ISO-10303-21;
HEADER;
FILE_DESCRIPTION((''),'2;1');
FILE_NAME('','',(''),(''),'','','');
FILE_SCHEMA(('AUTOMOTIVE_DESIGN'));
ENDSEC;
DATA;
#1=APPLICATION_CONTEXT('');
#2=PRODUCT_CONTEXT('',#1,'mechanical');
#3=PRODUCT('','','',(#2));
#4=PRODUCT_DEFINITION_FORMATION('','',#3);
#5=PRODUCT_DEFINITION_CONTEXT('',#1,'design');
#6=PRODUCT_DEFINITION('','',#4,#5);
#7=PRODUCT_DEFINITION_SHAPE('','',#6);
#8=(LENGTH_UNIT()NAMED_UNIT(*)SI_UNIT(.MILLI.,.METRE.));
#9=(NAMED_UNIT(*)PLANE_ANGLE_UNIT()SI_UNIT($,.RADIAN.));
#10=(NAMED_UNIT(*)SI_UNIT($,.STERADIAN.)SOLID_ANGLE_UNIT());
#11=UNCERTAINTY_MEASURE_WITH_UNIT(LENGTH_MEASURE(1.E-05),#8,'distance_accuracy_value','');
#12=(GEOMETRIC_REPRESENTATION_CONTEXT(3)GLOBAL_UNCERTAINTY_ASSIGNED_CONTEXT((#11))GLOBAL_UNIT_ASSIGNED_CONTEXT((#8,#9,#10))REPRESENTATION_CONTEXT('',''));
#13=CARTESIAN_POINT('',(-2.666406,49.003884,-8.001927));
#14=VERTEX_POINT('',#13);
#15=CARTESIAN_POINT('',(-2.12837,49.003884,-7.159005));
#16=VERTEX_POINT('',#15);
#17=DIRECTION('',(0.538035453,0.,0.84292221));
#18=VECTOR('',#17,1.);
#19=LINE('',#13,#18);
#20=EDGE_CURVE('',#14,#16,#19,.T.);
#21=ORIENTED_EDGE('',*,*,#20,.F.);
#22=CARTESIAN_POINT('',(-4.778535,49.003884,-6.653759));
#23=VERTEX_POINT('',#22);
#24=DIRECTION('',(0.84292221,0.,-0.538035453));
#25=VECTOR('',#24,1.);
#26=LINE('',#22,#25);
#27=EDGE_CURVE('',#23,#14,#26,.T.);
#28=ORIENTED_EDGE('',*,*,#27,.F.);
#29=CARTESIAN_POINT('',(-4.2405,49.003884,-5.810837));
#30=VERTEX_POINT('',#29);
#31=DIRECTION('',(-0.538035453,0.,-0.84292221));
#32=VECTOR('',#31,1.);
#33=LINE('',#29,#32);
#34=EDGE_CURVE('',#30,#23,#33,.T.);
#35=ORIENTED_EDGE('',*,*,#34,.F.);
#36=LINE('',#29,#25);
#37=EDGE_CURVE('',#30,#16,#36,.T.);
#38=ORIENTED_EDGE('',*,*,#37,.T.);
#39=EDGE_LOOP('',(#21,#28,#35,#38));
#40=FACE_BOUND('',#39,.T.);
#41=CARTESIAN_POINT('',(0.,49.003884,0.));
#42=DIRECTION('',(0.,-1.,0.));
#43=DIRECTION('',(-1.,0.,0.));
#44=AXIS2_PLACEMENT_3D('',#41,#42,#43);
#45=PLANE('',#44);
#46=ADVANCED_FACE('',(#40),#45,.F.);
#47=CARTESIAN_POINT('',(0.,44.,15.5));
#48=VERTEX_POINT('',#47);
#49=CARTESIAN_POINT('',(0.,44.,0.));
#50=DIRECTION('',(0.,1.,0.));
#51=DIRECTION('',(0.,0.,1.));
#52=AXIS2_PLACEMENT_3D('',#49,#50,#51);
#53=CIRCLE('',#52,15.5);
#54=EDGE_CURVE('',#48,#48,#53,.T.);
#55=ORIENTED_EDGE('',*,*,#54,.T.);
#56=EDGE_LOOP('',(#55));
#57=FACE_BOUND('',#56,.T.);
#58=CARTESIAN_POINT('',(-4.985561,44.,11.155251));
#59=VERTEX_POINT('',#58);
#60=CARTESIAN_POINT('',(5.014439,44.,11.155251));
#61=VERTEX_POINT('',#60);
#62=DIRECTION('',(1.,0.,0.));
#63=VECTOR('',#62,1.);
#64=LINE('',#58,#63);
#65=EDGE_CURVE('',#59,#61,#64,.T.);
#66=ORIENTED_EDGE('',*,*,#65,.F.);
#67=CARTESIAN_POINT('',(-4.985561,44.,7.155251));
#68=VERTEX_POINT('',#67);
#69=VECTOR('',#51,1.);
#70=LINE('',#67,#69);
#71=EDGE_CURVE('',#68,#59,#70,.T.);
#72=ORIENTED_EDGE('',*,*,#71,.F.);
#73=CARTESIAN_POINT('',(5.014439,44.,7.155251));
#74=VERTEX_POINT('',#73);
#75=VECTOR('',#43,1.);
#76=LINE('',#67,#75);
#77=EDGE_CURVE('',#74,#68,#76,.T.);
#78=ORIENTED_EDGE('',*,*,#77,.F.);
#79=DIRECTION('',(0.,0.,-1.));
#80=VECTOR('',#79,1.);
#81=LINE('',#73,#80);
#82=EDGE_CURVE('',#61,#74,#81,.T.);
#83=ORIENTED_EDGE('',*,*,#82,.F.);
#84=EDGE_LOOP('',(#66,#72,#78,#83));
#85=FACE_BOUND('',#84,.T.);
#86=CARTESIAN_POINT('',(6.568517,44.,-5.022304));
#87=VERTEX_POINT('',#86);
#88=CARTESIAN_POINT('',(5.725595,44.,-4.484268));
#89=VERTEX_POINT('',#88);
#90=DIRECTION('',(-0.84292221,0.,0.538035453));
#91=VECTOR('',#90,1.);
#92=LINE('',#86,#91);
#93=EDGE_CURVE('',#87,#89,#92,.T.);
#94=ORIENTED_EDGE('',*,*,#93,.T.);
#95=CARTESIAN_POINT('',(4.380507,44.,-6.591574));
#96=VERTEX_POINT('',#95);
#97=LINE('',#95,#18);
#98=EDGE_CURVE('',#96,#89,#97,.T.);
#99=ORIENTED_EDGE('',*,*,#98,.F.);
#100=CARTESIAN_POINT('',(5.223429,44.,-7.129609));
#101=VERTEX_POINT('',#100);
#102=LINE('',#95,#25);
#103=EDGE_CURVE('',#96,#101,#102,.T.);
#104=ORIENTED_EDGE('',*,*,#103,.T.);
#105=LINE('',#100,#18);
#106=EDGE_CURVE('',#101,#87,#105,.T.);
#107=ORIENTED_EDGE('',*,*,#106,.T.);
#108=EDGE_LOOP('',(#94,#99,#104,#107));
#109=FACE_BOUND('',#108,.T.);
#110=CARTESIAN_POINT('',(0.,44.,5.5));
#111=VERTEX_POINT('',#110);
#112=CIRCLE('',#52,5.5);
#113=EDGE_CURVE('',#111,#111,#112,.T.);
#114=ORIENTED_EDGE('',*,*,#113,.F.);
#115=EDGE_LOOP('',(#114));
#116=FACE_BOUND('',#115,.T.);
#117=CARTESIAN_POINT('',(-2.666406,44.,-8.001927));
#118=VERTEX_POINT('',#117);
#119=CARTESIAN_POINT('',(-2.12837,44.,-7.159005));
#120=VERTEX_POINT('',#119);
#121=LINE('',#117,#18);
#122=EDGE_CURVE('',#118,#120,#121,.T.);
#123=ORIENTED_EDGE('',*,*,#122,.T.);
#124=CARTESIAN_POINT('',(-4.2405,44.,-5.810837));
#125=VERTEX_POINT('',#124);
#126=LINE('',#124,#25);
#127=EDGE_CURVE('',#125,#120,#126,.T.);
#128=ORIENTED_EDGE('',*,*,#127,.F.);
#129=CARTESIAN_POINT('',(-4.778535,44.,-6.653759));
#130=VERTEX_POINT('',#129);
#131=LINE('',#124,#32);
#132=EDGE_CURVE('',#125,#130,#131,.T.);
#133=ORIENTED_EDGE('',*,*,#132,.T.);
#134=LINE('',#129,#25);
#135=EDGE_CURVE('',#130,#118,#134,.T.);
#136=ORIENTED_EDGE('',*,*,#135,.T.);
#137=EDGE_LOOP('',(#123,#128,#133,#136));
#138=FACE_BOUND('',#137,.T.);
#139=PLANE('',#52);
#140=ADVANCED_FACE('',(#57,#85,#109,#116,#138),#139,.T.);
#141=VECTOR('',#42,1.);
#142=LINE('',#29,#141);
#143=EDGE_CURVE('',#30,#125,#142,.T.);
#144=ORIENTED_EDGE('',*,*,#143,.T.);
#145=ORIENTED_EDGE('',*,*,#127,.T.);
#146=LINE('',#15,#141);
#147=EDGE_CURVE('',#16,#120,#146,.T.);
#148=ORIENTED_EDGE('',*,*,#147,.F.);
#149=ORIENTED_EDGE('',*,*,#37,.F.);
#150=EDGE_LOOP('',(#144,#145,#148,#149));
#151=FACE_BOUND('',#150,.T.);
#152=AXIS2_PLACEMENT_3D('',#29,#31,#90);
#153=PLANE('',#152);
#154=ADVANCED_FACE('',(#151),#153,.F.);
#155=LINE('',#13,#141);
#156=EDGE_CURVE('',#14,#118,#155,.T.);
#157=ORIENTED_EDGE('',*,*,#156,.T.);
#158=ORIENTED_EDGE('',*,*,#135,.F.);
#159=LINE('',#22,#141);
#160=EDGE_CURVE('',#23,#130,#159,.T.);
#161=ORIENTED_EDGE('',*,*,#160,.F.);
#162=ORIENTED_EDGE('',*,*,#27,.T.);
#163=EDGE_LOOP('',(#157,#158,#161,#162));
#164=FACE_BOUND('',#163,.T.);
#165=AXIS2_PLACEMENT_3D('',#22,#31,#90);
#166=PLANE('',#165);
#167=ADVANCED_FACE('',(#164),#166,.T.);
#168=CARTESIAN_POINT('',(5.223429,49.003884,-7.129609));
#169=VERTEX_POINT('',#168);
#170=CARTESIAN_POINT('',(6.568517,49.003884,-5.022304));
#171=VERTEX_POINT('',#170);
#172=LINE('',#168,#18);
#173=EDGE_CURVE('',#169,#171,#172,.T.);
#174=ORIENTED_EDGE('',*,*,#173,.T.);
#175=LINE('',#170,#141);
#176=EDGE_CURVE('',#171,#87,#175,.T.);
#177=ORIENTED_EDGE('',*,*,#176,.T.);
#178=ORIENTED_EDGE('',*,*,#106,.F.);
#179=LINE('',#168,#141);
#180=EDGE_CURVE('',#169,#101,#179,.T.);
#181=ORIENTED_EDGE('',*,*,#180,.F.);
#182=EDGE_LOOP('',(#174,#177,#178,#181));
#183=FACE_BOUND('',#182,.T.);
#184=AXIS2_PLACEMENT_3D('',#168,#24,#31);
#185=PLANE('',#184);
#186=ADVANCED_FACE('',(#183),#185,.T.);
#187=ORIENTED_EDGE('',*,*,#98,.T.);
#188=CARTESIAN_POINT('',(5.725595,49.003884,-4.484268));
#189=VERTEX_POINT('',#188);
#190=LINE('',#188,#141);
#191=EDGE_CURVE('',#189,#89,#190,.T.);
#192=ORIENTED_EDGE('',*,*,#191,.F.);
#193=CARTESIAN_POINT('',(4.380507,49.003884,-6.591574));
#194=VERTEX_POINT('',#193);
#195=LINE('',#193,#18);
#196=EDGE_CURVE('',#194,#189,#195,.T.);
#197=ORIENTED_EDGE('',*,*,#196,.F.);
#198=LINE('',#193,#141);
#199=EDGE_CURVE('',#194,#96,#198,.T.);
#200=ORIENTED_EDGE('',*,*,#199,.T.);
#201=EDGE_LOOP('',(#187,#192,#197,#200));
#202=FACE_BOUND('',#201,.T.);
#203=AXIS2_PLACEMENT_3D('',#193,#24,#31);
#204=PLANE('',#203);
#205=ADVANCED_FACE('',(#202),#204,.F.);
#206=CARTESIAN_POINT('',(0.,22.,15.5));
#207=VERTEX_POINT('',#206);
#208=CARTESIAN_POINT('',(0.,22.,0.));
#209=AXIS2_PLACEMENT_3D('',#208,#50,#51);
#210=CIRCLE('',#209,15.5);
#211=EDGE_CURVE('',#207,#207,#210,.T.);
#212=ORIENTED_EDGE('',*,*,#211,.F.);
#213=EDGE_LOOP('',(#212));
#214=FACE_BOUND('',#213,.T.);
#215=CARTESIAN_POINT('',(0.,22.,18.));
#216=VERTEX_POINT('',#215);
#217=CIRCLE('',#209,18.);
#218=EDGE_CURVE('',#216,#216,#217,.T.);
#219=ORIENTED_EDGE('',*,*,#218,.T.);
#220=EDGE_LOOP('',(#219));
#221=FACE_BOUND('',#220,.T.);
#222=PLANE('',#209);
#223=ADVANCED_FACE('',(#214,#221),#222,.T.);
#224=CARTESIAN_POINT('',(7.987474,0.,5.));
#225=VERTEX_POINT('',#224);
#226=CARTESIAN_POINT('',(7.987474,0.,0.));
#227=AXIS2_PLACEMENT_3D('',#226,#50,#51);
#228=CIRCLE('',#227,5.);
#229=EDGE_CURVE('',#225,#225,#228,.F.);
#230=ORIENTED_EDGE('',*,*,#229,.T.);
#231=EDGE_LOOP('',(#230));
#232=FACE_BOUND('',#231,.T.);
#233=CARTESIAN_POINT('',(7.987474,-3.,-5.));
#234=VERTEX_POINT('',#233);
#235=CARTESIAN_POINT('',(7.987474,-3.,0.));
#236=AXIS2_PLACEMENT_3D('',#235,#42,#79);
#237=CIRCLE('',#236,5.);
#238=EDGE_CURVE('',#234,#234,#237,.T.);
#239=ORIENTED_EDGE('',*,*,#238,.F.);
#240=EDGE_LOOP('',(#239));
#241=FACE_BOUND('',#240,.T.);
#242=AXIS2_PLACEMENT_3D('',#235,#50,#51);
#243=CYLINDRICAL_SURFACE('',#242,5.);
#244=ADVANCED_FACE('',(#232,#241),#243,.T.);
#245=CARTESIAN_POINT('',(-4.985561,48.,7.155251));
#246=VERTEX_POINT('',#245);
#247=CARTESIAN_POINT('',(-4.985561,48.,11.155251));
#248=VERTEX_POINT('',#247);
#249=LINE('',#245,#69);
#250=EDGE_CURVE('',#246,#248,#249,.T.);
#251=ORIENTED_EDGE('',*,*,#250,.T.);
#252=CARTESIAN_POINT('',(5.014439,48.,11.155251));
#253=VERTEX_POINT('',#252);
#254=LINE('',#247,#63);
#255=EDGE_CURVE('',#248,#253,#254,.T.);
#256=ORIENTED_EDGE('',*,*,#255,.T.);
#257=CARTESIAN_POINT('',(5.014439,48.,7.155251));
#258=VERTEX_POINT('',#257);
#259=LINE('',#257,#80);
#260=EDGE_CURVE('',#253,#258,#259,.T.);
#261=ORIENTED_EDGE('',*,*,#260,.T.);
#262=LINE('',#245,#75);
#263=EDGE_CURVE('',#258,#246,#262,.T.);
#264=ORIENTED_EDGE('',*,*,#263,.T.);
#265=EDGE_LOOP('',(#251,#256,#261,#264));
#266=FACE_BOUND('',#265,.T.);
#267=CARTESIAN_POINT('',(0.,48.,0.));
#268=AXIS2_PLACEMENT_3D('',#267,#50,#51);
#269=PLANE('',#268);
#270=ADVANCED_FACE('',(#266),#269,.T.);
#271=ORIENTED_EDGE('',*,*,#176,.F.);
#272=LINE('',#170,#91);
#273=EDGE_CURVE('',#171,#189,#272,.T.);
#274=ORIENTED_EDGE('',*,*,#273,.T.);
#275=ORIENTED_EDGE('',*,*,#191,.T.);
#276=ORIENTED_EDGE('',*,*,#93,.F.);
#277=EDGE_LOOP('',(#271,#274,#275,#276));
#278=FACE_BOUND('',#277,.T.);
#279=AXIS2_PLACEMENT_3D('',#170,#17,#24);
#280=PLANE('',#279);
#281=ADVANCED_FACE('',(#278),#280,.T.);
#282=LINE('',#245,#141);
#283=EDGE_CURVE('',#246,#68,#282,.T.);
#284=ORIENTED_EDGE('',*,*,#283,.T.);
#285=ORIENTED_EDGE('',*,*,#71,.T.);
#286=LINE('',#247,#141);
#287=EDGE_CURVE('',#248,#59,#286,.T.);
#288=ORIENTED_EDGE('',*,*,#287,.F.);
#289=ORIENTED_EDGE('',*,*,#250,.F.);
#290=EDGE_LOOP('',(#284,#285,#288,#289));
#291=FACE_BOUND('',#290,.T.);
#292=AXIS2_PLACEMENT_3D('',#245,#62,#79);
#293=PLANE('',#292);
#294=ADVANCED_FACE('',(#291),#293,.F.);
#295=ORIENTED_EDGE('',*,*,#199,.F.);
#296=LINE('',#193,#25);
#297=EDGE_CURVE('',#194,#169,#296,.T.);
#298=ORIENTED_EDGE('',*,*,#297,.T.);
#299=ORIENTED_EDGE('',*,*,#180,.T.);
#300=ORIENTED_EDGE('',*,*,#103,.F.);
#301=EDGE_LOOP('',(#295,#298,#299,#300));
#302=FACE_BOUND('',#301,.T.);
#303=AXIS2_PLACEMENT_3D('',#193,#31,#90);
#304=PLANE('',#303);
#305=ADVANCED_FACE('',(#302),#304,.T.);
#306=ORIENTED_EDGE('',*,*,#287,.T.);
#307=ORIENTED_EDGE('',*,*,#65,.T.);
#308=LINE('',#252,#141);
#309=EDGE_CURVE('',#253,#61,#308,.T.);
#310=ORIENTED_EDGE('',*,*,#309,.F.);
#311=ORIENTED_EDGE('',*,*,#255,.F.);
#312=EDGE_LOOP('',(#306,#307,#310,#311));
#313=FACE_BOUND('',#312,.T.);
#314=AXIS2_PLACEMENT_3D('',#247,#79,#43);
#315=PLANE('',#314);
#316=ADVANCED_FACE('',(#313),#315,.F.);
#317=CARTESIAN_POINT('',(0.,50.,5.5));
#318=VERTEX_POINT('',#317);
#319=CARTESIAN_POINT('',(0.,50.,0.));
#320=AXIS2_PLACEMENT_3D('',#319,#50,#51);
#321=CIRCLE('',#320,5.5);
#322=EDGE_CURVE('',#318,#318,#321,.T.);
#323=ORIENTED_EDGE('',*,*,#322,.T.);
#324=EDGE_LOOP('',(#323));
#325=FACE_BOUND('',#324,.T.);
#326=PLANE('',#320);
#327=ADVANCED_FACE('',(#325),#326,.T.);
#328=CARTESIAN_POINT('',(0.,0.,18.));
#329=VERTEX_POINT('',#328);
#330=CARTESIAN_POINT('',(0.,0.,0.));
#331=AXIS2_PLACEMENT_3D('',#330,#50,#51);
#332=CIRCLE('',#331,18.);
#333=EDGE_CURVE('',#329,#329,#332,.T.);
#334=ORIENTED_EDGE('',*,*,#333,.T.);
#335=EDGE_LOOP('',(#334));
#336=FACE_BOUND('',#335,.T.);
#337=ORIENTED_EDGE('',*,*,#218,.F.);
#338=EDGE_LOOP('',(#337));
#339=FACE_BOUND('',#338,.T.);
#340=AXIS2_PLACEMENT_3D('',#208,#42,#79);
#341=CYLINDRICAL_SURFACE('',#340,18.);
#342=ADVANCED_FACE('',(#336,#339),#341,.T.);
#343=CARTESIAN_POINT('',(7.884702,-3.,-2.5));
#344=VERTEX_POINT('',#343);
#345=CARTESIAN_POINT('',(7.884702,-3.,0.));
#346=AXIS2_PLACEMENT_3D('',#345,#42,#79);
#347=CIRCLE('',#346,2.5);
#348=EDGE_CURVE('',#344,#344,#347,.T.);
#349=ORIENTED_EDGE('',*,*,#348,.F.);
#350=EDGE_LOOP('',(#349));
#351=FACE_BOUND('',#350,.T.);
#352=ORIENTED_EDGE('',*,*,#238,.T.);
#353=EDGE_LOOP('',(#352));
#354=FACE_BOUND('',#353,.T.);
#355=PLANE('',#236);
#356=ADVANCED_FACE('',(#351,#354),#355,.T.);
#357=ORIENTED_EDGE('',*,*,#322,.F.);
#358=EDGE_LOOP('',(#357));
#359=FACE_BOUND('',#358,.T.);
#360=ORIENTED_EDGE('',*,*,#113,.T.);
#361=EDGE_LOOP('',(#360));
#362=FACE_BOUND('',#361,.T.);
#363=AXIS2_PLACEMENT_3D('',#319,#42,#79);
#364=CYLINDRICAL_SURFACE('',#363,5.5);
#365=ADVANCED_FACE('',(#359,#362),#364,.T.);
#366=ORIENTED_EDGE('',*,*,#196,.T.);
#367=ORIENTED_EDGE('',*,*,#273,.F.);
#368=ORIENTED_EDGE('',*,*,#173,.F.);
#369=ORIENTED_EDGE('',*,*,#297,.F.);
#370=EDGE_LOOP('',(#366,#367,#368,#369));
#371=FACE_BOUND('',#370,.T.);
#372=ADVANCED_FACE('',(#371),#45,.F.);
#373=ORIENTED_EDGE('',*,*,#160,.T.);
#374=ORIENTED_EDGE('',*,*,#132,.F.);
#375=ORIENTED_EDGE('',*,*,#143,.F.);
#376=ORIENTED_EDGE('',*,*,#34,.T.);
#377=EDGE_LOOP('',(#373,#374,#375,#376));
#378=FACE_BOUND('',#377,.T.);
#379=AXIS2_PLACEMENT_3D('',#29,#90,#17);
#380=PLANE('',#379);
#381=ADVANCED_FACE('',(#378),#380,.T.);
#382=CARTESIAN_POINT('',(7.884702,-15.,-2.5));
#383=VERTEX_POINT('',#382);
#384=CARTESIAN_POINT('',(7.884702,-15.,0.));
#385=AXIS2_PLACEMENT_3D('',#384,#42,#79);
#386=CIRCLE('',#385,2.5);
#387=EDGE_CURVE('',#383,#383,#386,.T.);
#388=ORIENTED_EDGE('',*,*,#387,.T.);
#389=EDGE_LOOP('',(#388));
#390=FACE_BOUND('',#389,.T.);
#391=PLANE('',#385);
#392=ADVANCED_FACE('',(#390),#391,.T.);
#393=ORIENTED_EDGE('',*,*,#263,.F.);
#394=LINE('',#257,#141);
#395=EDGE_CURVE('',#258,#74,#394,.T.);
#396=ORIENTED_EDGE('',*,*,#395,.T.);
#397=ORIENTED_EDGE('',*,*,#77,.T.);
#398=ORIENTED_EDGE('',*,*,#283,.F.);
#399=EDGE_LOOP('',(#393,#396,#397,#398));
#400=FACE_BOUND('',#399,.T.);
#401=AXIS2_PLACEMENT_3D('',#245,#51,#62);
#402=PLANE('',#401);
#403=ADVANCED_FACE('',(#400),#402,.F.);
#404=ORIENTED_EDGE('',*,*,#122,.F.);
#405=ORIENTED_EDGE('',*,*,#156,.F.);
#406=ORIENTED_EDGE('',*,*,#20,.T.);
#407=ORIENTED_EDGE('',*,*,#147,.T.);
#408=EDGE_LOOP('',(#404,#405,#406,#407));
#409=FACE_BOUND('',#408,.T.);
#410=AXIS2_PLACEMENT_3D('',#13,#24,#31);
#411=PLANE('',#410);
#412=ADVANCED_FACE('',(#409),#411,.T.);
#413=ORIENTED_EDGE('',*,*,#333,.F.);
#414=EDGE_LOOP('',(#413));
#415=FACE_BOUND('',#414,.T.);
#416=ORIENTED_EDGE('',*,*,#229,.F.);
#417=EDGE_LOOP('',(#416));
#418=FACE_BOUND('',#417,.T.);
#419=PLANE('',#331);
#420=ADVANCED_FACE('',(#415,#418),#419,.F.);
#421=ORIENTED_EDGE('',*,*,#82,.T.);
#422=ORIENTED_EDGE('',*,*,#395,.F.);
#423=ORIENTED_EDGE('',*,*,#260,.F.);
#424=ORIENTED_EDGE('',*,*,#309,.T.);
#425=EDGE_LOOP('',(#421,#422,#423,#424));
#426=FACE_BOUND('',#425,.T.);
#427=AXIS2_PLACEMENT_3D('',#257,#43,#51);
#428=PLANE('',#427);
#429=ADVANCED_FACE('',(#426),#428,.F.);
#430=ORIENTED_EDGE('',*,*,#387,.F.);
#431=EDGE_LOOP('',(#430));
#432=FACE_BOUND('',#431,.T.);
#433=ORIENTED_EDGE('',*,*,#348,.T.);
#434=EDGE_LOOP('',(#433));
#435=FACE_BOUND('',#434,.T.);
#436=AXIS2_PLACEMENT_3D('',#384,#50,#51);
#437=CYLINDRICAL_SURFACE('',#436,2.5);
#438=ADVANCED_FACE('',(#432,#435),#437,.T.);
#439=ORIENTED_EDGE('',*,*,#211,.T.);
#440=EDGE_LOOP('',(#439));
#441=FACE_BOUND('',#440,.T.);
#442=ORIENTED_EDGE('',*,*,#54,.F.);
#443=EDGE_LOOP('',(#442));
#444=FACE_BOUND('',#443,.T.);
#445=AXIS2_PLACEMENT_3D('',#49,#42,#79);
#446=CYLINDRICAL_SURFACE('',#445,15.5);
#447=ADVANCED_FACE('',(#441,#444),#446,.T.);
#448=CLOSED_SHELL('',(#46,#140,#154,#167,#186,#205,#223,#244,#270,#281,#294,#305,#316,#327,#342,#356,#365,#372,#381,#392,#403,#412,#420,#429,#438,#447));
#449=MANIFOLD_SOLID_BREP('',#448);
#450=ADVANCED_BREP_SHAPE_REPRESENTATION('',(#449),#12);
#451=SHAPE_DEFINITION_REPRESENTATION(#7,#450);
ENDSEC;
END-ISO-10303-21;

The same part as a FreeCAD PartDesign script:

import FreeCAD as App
import Part
import Sketcher
from FreeCAD import Vector
Q = App.Units.Quantity


def add_polygon(sketch, points):
    """Adds a closed chain of lines whose ends are joined by coincident constraints."""
    first, n = sketch.GeometryCount, len(points)
    for a, b in zip(points, points[1:] + points[:1]):
        sketch.addGeometry(Part.LineSegment(App.Vector(*a, 0), App.Vector(*b, 0)), False)
    for i in range(n):
        sketch.addConstraint(Sketcher.Constraint("Coincident", first + i, 2, first + (i + 1) % n, 1))

doc = App.newDocument("Part")
body = doc.addObject("PartDesign::Body", "Body")

# Sketch on XZ plane
sketch1 = body.newObject("Sketcher::SketchObject", "Sketch")
sketch1.AttachmentSupport = (doc.getObject("XZ_Plane"), [""])
sketch1.MapMode = "FlatFace"
sketch1.addGeometry(Part.Circle(Vector(0, 0, 0), Vector(0, 0, 1), 18), False)
sketch1.addConstraint([
    Sketcher.Constraint("Coincident", 0, 3, -1, 1),
    Sketcher.Constraint("Diameter", 0, 36.0),
])
pad1 = body.newObject("PartDesign::Pad", "Pad")
pad1.Profile = sketch1
pad1.Length = 22
pad1.Reversed = True

# Sketch on XZ plane
sketch2 = body.newObject("Sketcher::SketchObject", "Sketch001")
sketch2.AttachmentSupport = (doc.getObject("XZ_Plane"), [""])
sketch2.MapMode = "FlatFace"
sketch2.AttachmentOffset = App.Placement(Vector(0, 0, -22), App.Rotation())
sketch2.addGeometry(Part.Circle(Vector(0, 0, 0), Vector(0, 0, 1), 16), False)
sketch2.addConstraint([
    Sketcher.Constraint("Coincident", 0, 3, -1, 1),
    Sketcher.Constraint("Diameter", 0, 31.0),
])
pad2 = body.newObject("PartDesign::Pad", "Pad001")
pad2.Profile = sketch2
pad2.Length = 22
pad2.Reversed = True

# Sketch on XZ plane
sketch3 = body.newObject("Sketcher::SketchObject", "Sketch002")
sketch3.AttachmentSupport = (doc.getObject("XZ_Plane"), [""])
sketch3.MapMode = "FlatFace"
sketch3.addGeometry(Part.Circle(Vector(8, 0, 0), Vector(0, 0, 1), 5), False)
sketch3.addConstraint([
    Sketcher.Constraint("PointOnObject", 0, 3, -1),
    Sketcher.Constraint("Diameter", 0, 10.0),
    Sketcher.Constraint("DistanceX", -1, 1, 0, 3, 7.987474),
])
pad3 = body.newObject("PartDesign::Pad", "Pad002")
pad3.Profile = sketch3
pad3.Length = 3

# Sketch on XZ plane
sketch4 = body.newObject("Sketcher::SketchObject", "Sketch003")
sketch4.AttachmentSupport = (doc.getObject("XZ_Plane"), [""])
sketch4.MapMode = "FlatFace"
sketch4.AttachmentOffset = App.Placement(Vector(0, 0, 3), App.Rotation())
sketch4.addGeometry(Part.Circle(Vector(7.9, 0, 0), Vector(0, 0, 1), 2.5), False)
sketch4.addConstraint([
    Sketcher.Constraint("PointOnObject", 0, 3, -1),
    Sketcher.Constraint("Diameter", 0, 5.0),
    Sketcher.Constraint("DistanceX", -1, 1, 0, 3, 7.884702),
])
pad4 = body.newObject("PartDesign::Pad", "Pad003")
pad4.Profile = sketch4
pad4.Length = 12

# Sketch on XZ plane
sketch5 = body.newObject("Sketcher::SketchObject", "Sketch004")
sketch5.AttachmentSupport = (doc.getObject("XZ_Plane"), [""])
sketch5.MapMode = "FlatFace"
sketch5.AttachmentOffset = App.Placement(Vector(0, 0, -44), App.Rotation())
sketch5.addGeometry(Part.Circle(Vector(0, 0, 0), Vector(0, 0, 1), 6), False)
sketch5.addConstraint([
    Sketcher.Constraint("Coincident", 0, 3, -1, 1),
    Sketcher.Constraint("Diameter", 0, 11.0),
])
pad5 = body.newObject("PartDesign::Pad", "Pad004")
pad5.Profile = sketch5
pad5.Length = 6
pad5.Reversed = True

# Sketch on XZ plane
sketch6 = body.newObject("Sketcher::SketchObject", "Sketch005")
sketch6.AttachmentSupport = (doc.getObject("XZ_Plane"), [""])
sketch6.MapMode = "FlatFace"
sketch6.AttachmentOffset = App.Placement(Vector(0, 0, -44), App.Rotation())
add_polygon(sketch6, [(-2.7, -8), (-4.8, -6.7), (-4.2, -5.8), (-2.1, -7.2)])  # lines 0-3
add_polygon(sketch6, [(6.6, -5), (5.2, -7.1), (4.4, -6.6), (5.7, -4.5)])  # lines 4-7
sketch6.addConstraint([
    Sketcher.Constraint("Perpendicular", 0, 1),
    Sketcher.Constraint("Perpendicular", 1, 2),
    Sketcher.Constraint("Perpendicular", 2, 3),
    Sketcher.Constraint("Parallel", 3, 4),
    Sketcher.Constraint("Perpendicular", 4, 5),
    Sketcher.Constraint("Perpendicular", 5, 6),
    Sketcher.Constraint("Perpendicular", 6, 7),
    Sketcher.Constraint("Equal", 3, 5),
    Sketcher.Constraint("Distance", 1, 1.0),
    Sketcher.Constraint("Distance", 4, 2.5),
    Sketcher.Constraint("Angle", 0, Q("147.449996 deg")),
    Sketcher.Constraint("DistanceX", 3, 2, 6, 2, 8.392001),
    Sketcher.Constraint("DistanceX", 1, 2, -1, 1, 4.2405),
    Sketcher.Constraint("DistanceY", 2, 2, 7, 2, 2.136702),
    Sketcher.Constraint("DistanceY", 0, 2, -1, 1, 6.653759),
    Sketcher.Constraint("DistanceX", 2, 2, -1, 1, 2.12837),
])
pad6 = body.newObject("PartDesign::Pad", "Pad005")
pad6.Profile = sketch6
pad6.Length = 5.003884
pad6.Reversed = True

# Sketch on XZ plane
sketch7 = body.newObject("Sketcher::SketchObject", "Sketch006")
sketch7.AttachmentSupport = (doc.getObject("XZ_Plane"), [""])
sketch7.MapMode = "FlatFace"
sketch7.AttachmentOffset = App.Placement(Vector(0, 0, -44), App.Rotation())
add_polygon(sketch7, [(-5, 7.2), (-5, 11.2), (5, 11.2), (5, 7.2)])  # lines 0-3
sketch7.addConstraint([
    Sketcher.Constraint("Vertical", 0),
    Sketcher.Constraint("Horizontal", 1),
    Sketcher.Constraint("Vertical", 2),
    Sketcher.Constraint("Horizontal", 3),
    Sketcher.Constraint("DistanceX", 1, 1, 1, 2, 10.0),
    Sketcher.Constraint("DistanceY", 0, 1, 0, 2, 4.0),
    Sketcher.Constraint("DistanceX", 0, 2, -1, 1, 4.985561),
    Sketcher.Constraint("DistanceY", -1, 1, 0, 2, 11.155251),
])
pad7 = body.newObject("PartDesign::Pad", "Pad006")
pad7.Profile = sketch7
pad7.Length = 4
pad7.Reversed = True

doc.recompute()
